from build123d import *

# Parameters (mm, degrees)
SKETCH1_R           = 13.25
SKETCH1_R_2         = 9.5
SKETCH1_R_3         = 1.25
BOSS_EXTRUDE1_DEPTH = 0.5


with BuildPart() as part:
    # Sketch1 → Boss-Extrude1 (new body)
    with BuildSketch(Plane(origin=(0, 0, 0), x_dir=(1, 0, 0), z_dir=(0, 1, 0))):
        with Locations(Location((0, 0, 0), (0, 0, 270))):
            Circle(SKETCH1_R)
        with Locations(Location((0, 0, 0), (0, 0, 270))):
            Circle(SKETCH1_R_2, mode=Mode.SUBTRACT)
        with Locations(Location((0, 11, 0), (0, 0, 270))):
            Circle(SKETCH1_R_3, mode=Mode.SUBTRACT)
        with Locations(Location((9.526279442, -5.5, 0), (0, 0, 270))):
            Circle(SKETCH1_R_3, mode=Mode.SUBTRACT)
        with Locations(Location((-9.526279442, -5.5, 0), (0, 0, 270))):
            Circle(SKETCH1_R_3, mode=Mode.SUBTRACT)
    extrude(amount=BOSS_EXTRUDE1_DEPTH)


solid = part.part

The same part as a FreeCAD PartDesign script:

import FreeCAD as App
import Part
import Sketcher

V = App.Vector

doc = App.newDocument("Part")
body = doc.addObject("PartDesign::Body", "Body")

# Sketch on XZ plane
sketch1 = body.newObject("Sketcher::SketchObject", "Sketch")
sketch1.AttachmentSupport = (doc.getObject("XZ_Plane"), [""])
sketch1.MapMode = "FlatFace"
sketch1.addGeometry(Part.Circle(V(0, 0, 0), V(0, 0, 1), 13.25), False)
sketch1.addGeometry(Part.Circle(V(0, -11, 0), V(0, 0, 1), 1.25), False)
sketch1.addGeometry(Part.Circle(V(-9.526279, 5.5, 0), V(0, 0, 1), 1.25), False)
sketch1.addGeometry(Part.Circle(V(0, 0, 0), V(0, 0, 1), 9.5), False)
sketch1.addGeometry(Part.Circle(V(9.526279, 5.5, 0), V(0, 0, 1), 1.25), False)
sketch1.addConstraint(Sketcher.Constraint("Coincident", 0, 3, -1, 1))
sketch1.addConstraint(Sketcher.Constraint("Coincident", 3, 3, -1, 1))
sketch1.addConstraint(Sketcher.Constraint("Equal", 1, 2))
sketch1.addConstraint(Sketcher.Constraint("Equal", 2, 4))
sketch1.addConstraint(Sketcher.Constraint("Symmetric", 2, 3, 4, 3, -2))
sketch1.addConstraint(Sketcher.Constraint("PointOnObject", 1, 3, -2))
sketch1.addConstraint(Sketcher.Constraint("Diameter", 3, 19.0))
sketch1.addConstraint(Sketcher.Constraint("Diameter", 0, 26.5))
sketch1.addConstraint(Sketcher.Constraint("Diameter", 1, 2.5))
sketch1.addConstraint(Sketcher.Constraint("DistanceY", 1, 3, -1, 1, 11.0))
sketch1.addConstraint(Sketcher.Constraint("DistanceY", -1, 1, 2, 3, 5.5))
sketch1.addConstraint(Sketcher.Constraint("DistanceX", 2, 3, -1, 1, 9.526279))
pad1 = body.newObject("PartDesign::Pad", "Pad")
pad1.Profile = sketch1
pad1.Length = 0.5
pad1.Reversed = True

doc.recompute()
